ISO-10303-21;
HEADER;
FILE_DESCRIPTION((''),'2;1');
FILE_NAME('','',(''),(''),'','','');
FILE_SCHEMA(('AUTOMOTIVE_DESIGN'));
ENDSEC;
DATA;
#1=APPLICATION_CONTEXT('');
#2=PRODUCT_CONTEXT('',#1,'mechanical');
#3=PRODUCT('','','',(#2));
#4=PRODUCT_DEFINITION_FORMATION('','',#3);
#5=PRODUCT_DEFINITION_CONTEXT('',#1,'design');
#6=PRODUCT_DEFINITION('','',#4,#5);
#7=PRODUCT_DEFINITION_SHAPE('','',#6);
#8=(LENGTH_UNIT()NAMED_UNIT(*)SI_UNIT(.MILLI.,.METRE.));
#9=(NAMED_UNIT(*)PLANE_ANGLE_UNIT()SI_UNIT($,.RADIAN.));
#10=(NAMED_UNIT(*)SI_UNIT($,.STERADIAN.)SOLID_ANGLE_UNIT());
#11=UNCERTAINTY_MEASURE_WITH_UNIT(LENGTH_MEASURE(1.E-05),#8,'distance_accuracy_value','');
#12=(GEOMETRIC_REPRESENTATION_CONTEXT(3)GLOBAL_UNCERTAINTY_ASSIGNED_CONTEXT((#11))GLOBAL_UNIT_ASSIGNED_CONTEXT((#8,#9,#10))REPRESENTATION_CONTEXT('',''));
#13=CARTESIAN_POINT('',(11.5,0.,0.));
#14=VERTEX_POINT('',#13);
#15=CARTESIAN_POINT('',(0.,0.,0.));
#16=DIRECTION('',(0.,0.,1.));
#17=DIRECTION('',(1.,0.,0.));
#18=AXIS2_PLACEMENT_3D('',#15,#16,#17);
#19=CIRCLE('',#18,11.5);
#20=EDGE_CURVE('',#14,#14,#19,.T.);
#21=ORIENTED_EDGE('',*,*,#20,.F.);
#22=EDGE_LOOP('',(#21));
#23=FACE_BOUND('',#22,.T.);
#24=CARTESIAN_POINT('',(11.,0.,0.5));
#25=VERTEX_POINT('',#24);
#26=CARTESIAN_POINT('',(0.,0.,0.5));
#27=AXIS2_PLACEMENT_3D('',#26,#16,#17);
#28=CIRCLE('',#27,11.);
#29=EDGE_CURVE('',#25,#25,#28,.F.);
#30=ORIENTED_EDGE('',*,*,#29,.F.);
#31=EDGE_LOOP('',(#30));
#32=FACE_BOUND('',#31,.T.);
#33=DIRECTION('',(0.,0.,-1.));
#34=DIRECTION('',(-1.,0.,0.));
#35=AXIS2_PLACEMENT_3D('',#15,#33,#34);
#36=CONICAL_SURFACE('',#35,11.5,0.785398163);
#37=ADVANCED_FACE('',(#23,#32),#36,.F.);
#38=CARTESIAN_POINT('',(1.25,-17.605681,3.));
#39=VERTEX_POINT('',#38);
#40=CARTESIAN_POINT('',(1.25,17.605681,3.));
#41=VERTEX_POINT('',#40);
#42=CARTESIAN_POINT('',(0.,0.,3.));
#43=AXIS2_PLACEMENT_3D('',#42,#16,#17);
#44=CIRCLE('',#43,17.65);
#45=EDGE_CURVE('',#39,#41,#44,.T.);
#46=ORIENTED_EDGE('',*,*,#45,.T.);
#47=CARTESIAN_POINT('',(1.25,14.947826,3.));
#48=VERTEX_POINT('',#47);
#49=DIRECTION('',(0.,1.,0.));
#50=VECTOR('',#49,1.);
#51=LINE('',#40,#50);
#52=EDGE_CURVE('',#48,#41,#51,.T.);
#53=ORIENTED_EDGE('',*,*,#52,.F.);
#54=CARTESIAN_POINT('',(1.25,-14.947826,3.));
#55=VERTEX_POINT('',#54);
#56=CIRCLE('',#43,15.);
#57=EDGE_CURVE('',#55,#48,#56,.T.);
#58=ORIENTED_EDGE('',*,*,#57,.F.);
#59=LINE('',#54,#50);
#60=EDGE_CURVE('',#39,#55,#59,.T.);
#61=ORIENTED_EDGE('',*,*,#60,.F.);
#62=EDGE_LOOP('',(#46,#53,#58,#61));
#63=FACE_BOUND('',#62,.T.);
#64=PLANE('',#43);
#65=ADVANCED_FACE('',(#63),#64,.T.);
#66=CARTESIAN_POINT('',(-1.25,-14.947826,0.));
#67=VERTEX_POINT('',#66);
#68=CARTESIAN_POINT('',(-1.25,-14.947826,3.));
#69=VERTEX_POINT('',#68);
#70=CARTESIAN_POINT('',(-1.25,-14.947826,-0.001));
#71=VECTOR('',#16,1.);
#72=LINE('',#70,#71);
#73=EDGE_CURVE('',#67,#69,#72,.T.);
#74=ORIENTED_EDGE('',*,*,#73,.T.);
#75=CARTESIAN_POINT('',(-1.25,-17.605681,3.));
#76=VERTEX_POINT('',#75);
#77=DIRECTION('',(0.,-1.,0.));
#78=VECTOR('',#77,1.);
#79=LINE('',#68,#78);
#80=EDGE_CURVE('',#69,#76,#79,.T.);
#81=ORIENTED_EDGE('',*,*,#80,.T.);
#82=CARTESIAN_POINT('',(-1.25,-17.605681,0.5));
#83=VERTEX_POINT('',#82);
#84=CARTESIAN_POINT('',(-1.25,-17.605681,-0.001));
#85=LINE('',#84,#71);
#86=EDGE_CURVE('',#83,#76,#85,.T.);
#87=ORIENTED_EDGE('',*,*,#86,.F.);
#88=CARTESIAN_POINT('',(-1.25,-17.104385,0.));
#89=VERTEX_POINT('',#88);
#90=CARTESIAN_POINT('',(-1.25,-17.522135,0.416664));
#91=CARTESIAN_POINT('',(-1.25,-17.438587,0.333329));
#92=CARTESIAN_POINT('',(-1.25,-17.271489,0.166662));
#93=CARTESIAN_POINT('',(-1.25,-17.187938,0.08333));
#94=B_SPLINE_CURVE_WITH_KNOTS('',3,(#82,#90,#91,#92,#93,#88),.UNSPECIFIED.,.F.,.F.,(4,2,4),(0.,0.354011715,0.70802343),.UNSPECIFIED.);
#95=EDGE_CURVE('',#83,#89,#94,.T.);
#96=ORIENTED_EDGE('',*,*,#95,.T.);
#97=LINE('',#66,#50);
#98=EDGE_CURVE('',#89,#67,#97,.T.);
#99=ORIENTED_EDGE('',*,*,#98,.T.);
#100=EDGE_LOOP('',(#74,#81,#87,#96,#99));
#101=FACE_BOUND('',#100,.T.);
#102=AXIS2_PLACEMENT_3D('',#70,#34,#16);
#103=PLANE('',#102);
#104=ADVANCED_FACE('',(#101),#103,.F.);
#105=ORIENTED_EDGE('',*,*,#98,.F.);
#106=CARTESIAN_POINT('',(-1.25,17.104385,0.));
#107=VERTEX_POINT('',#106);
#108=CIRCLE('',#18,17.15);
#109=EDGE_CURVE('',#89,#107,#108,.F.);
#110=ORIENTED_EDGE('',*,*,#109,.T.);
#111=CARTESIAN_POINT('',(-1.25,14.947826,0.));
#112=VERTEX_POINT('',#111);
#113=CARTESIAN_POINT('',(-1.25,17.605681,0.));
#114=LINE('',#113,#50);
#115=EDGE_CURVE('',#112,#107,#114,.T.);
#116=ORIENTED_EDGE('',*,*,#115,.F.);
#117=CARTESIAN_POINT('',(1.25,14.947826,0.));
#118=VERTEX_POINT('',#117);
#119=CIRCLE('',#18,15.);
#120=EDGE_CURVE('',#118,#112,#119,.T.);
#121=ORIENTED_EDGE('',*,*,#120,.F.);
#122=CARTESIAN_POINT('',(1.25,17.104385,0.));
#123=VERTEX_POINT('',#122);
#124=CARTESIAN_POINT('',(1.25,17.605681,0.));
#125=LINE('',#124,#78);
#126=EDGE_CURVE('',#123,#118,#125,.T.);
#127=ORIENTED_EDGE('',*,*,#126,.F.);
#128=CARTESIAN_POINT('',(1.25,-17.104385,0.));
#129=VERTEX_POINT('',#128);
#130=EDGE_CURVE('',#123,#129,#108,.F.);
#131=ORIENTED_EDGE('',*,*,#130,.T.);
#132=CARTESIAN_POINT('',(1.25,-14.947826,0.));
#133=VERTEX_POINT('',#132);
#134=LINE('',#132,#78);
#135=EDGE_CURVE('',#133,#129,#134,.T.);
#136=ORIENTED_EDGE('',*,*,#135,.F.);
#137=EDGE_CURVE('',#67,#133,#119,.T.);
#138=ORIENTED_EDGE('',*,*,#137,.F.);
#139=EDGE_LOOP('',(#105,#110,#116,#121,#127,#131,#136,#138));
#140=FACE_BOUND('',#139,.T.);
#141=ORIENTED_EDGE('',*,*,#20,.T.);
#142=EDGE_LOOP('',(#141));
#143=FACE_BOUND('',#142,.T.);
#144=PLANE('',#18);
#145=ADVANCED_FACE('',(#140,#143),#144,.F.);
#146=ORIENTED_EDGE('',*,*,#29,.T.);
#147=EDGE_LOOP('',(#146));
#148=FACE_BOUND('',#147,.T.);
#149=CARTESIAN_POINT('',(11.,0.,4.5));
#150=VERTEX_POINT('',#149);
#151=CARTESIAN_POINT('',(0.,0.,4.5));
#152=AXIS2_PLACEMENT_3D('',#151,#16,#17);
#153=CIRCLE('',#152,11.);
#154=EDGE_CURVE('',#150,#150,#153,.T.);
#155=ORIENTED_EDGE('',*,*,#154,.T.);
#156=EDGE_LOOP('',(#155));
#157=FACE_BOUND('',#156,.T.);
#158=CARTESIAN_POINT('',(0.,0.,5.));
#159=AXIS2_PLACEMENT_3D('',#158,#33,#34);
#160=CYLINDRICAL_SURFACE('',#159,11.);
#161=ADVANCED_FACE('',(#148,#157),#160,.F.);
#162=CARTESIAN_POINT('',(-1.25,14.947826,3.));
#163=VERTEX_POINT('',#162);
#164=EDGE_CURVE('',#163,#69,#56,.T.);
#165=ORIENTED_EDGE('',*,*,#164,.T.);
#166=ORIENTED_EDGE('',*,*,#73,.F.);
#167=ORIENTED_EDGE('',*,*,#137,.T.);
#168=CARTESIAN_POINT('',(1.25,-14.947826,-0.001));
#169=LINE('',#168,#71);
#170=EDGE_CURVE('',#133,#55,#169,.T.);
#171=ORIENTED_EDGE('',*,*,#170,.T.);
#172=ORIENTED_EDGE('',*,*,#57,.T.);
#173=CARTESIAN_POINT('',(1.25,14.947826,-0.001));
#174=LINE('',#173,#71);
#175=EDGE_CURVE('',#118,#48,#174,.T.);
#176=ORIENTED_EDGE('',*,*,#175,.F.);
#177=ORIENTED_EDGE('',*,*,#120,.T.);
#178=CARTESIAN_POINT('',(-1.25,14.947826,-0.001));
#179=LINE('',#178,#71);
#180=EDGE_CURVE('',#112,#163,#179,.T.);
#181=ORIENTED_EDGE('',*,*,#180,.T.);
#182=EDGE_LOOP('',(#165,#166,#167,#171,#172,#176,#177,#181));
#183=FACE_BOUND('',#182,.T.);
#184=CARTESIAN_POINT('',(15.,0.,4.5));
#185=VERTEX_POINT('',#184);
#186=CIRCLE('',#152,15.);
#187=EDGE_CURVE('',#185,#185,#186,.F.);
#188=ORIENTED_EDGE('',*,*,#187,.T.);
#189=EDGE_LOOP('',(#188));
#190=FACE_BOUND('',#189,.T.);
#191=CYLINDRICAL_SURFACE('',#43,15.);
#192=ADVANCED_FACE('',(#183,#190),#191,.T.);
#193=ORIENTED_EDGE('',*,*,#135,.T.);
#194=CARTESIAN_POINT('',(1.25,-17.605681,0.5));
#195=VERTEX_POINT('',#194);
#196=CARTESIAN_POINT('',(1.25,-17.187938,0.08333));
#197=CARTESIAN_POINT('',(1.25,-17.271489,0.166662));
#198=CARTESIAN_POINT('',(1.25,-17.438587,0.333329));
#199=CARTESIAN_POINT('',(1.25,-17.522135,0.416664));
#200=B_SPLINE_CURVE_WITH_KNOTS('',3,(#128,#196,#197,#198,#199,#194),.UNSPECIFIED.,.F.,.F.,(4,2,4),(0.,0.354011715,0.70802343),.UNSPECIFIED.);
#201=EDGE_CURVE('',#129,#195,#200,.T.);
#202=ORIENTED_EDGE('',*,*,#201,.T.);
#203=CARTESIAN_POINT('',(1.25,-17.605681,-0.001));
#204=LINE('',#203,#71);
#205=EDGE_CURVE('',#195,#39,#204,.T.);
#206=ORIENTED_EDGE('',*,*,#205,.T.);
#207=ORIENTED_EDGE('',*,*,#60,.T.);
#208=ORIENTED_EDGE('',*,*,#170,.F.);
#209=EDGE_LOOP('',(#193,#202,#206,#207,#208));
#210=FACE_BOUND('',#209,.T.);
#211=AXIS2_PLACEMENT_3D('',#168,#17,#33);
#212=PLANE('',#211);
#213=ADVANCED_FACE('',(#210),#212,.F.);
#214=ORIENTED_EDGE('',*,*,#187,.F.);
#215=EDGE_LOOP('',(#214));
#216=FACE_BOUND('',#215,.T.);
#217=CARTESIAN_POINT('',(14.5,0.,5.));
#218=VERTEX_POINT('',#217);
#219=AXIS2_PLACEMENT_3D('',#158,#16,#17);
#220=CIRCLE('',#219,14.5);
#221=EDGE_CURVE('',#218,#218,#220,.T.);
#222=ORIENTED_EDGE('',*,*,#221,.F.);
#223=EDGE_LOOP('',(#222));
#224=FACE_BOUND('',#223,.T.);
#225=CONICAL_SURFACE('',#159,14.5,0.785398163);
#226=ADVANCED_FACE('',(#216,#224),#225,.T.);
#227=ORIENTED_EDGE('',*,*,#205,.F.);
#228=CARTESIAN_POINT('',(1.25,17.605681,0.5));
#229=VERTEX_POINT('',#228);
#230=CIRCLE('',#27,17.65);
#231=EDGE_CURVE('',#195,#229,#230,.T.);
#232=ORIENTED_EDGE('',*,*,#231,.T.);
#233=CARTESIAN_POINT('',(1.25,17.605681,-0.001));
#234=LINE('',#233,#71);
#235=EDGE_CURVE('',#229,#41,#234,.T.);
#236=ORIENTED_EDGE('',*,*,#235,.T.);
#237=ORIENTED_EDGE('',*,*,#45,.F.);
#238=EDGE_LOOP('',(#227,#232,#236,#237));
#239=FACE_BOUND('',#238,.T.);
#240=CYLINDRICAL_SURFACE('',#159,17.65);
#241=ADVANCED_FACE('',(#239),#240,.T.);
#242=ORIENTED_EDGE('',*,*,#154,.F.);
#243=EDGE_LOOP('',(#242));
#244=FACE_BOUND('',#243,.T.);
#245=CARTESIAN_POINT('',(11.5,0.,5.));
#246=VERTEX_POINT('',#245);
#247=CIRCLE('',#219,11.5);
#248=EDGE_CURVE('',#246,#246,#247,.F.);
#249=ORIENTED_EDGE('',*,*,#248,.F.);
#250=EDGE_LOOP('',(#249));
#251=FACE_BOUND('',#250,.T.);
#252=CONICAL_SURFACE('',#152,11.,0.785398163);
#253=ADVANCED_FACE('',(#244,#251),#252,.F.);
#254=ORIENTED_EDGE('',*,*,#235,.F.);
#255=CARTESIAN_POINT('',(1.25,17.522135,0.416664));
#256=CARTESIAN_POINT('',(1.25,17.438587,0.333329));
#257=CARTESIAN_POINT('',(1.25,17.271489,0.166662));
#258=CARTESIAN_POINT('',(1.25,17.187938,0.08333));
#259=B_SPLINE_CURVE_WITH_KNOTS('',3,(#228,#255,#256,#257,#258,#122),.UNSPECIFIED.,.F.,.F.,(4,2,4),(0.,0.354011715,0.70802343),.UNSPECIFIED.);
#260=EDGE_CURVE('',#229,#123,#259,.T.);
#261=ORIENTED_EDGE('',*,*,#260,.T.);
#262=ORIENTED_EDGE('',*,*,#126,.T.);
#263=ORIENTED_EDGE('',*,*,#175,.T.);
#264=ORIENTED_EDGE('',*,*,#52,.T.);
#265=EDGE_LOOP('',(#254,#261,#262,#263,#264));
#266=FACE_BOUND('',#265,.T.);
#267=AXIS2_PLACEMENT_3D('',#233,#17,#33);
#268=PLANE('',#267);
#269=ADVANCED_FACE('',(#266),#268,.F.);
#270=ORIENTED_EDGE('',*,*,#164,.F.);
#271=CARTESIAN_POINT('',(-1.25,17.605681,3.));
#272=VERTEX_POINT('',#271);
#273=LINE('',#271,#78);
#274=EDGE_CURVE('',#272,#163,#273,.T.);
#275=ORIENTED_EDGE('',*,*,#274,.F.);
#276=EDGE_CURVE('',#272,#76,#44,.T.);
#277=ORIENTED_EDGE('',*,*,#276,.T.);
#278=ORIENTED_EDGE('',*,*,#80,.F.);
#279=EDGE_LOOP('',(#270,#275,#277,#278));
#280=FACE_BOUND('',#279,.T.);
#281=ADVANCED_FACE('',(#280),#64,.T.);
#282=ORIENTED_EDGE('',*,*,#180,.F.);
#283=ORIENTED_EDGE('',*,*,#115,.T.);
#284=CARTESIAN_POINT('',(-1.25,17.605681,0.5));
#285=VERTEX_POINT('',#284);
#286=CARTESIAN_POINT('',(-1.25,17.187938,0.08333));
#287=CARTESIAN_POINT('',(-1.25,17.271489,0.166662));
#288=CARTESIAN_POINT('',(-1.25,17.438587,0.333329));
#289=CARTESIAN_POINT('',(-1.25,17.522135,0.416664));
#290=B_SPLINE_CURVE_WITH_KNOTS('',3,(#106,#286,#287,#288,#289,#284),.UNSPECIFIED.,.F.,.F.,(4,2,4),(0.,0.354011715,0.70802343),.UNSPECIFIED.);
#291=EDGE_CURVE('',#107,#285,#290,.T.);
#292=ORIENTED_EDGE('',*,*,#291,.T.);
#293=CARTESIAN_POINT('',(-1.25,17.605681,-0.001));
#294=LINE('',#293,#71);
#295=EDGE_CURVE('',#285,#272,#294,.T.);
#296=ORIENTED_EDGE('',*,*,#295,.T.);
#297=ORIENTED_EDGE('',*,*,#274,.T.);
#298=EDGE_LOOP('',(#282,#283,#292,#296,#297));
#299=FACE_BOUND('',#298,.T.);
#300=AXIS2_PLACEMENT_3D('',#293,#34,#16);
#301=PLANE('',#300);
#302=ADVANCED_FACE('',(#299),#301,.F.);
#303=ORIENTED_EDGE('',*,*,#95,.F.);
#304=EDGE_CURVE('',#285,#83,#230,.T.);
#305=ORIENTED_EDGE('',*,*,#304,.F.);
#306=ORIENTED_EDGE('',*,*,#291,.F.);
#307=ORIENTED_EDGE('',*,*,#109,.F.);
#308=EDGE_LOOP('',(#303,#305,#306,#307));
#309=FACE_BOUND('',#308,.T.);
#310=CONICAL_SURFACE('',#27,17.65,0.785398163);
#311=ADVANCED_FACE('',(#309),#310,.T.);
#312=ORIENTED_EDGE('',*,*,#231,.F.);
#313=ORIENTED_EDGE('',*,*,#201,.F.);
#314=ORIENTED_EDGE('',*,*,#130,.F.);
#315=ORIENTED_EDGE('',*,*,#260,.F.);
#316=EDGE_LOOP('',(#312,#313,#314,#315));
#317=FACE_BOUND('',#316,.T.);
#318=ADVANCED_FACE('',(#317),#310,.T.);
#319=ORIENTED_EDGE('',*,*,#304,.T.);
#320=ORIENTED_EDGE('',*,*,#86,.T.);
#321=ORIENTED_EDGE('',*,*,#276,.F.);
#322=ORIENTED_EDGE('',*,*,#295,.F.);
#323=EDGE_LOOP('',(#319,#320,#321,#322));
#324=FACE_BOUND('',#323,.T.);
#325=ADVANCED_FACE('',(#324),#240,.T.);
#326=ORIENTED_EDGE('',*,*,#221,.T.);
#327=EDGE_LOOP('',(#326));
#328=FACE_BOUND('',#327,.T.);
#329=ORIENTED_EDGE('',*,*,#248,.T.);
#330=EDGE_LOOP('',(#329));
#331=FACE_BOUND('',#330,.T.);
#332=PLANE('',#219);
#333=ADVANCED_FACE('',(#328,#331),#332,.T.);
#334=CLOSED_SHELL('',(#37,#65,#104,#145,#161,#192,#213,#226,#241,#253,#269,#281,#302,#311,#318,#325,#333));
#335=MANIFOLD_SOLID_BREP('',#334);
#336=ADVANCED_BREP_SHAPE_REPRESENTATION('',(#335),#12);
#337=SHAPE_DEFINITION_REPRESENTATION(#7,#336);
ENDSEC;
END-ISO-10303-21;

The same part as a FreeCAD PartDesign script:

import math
import FreeCAD as App
import Part
import Sketcher
from FreeCAD import Vector


def edges_at(feature, points):
    """Names of the edges that pass closest to the given points."""
    edges = feature.Shape.Edges
    near = lambda p: min(range(len(edges)), key=lambda i: edges[i].distToShape(Part.Vertex(*p))[0])
    return sorted({f"Edge{near(p) + 1}" for p in points})

doc = App.newDocument("Part")
body = doc.addObject("PartDesign::Body", "Body")

# Sketch on XY plane
sketch1 = doc.addObject("Sketcher::SketchObject", "Sketch")
body.addObject(sketch1)
sketch1.AttachmentSupport = (doc.XY_Plane, [""])
sketch1.MapMode = "FlatFace"
sketch1.addGeometry(Part.Circle(Vector(0, 0, 0), Vector(0, 0, 1), 18), False)
sketch1.addGeometry(Part.Circle(Vector(0, 0, 0), Vector(0, 0, 1), 11), False)
sketch1.addConstraint(Sketcher.Constraint("Coincident", 0, 3, -1, 1))
sketch1.addConstraint(Sketcher.Constraint("Coincident", 1, 3, -1, 1))
sketch1.addConstraint(Sketcher.Constraint("Diameter", 1, 22.0))
sketch1.addConstraint(Sketcher.Constraint("Diameter", 0, 35.3))
pad1 = doc.addObject("PartDesign::Pad", "Pad")
body.addObject(pad1)
pad1.Profile = sketch1
pad1.Length = 5

# Sketch on XY plane
sketch2 = doc.addObject("Sketcher::SketchObject", "Sketch001")
body.addObject(sketch2)
sketch2.AttachmentSupport = (doc.XY_Plane, [""])
sketch2.MapMode = "FlatFace"
sketch2.AttachmentOffset = App.Placement(Vector(0, 0, 5), App.Rotation())
sketch2.addGeometry(Part.Circle(Vector(0, 0, 0), Vector(0, 0, 1), 18), False)
sketch2.addGeometry(Part.Circle(Vector(0, 0, 0), Vector(0, 0, 1), 15), False)
sketch2.addConstraint(Sketcher.Constraint("Coincident", 0, 3, -1, 1))
sketch2.addConstraint(Sketcher.Constraint("Coincident", 1, 3, -1, 1))
sketch2.addConstraint(Sketcher.Constraint("Diameter", 1, 30.0))
sketch2.addConstraint(Sketcher.Constraint("Diameter", 0, 35.3))
pocket1 = doc.addObject("PartDesign::Pocket", "Pocket")
body.addObject(pocket1)
pocket1.Profile = sketch2
pocket1.Length = 2

# Sketch on XY plane
sketch3 = doc.addObject("Sketcher::SketchObject", "Sketch002")
body.addObject(sketch3)
sketch3.AttachmentSupport = (doc.XY_Plane, [""])
sketch3.MapMode = "FlatFace"
sketch3.AttachmentOffset = App.Placement(Vector(0, 0, 3), App.Rotation())
sketch3.addGeometry(Part.LineSegment(Vector(1.2, 14.9, 0), Vector(1.2, 17.6, 0)), False)
sketch3.addGeometry(Part.ArcOfCircle(Part.Circle(Vector(0, 0, 0), Vector(0, 0, 1), 17.6), math.radians(85.94), math.radians(94.06)), False)
sketch3.addGeometry(Part.LineSegment(Vector(-1.2, 17.6, 0), Vector(-1.2, 14.9, 0)), False)
sketch3.addGeometry(Part.ArcOfCircle(Part.Circle(Vector(0, 0, 0), Vector(0, 0, 1), 15), math.radians(85.22), math.radians(94.78)), False)
sketch3.addConstraint(Sketcher.Constraint("Coincident", 0, 2, 1, 1))
sketch3.addConstraint(Sketcher.Constraint("Coincident", 1, 2, 2, 1))
sketch3.addConstraint(Sketcher.Constraint("Coincident", 2, 2, 3, 2))
sketch3.addConstraint(Sketcher.Constraint("Coincident", 3, 1, 0, 1))
sketch3.addConstraint(Sketcher.Constraint("Vertical", 0))
sketch3.addConstraint(Sketcher.Constraint("Vertical", 2))
sketch3.addConstraint(Sketcher.Constraint("Coincident", 1, 3, -1, 1))
sketch3.addConstraint(Sketcher.Constraint("Coincident", 3, 3, -1, 1))
sketch3.addConstraint(Sketcher.Constraint("Horizontal", 0, 2, 1, 2))
sketch3.addConstraint(Sketcher.Constraint("Radius", 3, 15.0))
sketch3.addConstraint(Sketcher.Constraint("Radius", 1, 17.65))
sketch3.addConstraint(Sketcher.Constraint("DistanceX", 1, 2, 0, 2, 2.5))
pocket2 = doc.addObject("PartDesign::Pocket", "Pocket001")
body.addObject(pocket2)
pocket2.Profile = sketch3
pocket2.Type = "UpToFirst"

# Sketch on XY plane
sketch4 = doc.addObject("Sketcher::SketchObject", "Sketch003")
body.addObject(sketch4)
sketch4.AttachmentSupport = (doc.XY_Plane, [""])
sketch4.MapMode = "FlatFace"
sketch4.AttachmentOffset = App.Placement(Vector(0, 0, 3), App.Rotation())
sketch4.addGeometry(Part.LineSegment(Vector(1.2, -17.6, 0), Vector(1.2, -14.9, 0)), False)
sketch4.addGeometry(Part.ArcOfCircle(Part.Circle(Vector(0, 0, 0), Vector(0, 0, 1), 15), math.radians(-94.78), math.radians(-85.22)), False)
sketch4.addGeometry(Part.LineSegment(Vector(-1.2, -14.9, 0), Vector(-1.2, -17.6, 0)), False)
sketch4.addGeometry(Part.ArcOfCircle(Part.Circle(Vector(0, 0, 0), Vector(0, 0, 1), 17.6), math.radians(-94.06), math.radians(-85.94)), False)
sketch4.addConstraint(Sketcher.Constraint("Coincident", 0, 2, 1, 2))
sketch4.addConstraint(Sketcher.Constraint("Coincident", 1, 1, 2, 1))
sketch4.addConstraint(Sketcher.Constraint("Coincident", 2, 2, 3, 1))
sketch4.addConstraint(Sketcher.Constraint("Coincident", 3, 2, 0, 1))
sketch4.addConstraint(Sketcher.Constraint("Vertical", 0))
sketch4.addConstraint(Sketcher.Constraint("Vertical", 2))
sketch4.addConstraint(Sketcher.Constraint("Coincident", 1, 3, -1, 1))
sketch4.addConstraint(Sketcher.Constraint("Coincident", 3, 3, -1, 1))
sketch4.addConstraint(Sketcher.Constraint("Horizontal", 0, 2, 1, 1))
sketch4.addConstraint(Sketcher.Constraint("Radius", 1, 15.0))
sketch4.addConstraint(Sketcher.Constraint("Radius", 3, 17.65))
sketch4.addConstraint(Sketcher.Constraint("DistanceX", 1, 1, 0, 2, 2.5))
pocket3 = doc.addObject("PartDesign::Pocket", "Pocket002")
body.addObject(pocket3)
pocket3.Profile = sketch4
pocket3.Type = "UpToFirst"
doc.recompute()

chamfer = doc.addObject("PartDesign::Chamfer", "Chamfer")
body.addObject(chamfer)
chamfer.Base = (pocket3, edges_at(pocket3, [
    (-15, 0, 5),
    (-17.65, 0, 0),
    (17.65, 0, 0),
    (-11, 0, 0),
    (-11, 0, 5),
]))
chamfer.Size = 0.5

doc.recompute()
